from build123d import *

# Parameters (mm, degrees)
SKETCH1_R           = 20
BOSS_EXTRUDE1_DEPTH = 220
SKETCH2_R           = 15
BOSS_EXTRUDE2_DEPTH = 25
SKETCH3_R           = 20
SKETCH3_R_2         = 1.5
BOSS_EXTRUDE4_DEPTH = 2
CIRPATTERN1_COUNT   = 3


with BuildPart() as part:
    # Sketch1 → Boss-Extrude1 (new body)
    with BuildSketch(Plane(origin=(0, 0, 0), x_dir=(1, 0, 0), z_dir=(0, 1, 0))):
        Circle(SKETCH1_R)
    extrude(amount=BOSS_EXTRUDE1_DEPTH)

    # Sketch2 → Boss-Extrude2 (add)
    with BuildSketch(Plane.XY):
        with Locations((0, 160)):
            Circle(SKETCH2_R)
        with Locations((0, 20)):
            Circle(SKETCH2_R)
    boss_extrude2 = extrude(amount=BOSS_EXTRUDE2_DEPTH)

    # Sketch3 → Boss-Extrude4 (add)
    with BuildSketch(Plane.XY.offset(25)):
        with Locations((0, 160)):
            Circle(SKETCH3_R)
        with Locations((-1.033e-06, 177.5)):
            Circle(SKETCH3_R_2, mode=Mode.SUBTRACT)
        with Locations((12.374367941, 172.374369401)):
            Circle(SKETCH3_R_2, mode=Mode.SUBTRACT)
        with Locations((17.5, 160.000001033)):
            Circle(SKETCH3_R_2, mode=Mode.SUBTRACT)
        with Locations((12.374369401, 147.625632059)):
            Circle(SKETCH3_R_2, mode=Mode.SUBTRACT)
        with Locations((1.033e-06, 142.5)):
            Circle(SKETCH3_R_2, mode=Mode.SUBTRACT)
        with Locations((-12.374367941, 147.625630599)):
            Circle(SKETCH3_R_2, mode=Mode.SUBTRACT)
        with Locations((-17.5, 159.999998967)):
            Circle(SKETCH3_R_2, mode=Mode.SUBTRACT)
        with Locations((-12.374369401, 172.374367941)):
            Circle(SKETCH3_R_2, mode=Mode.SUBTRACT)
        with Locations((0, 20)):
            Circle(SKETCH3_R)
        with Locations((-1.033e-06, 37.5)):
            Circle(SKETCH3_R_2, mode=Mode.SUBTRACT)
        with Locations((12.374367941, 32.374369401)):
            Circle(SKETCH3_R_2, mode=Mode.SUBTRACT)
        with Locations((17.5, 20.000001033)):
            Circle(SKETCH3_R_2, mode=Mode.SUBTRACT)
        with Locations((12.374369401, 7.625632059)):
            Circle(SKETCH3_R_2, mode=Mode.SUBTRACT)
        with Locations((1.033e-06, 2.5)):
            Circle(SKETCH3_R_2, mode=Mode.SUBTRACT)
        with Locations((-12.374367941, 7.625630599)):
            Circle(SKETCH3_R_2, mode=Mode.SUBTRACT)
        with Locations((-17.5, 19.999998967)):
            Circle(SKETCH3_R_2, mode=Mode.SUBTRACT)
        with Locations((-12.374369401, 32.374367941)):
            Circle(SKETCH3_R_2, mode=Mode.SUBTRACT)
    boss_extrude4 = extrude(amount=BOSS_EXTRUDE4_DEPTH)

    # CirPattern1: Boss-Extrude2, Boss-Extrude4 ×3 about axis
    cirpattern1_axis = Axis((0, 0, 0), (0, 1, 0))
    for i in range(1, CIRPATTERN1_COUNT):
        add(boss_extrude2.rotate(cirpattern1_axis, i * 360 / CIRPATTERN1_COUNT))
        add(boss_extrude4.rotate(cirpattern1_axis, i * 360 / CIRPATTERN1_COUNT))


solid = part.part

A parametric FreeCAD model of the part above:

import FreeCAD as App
import Part
import Sketcher

V = App.Vector
Q = App.Units.Quantity

doc = App.newDocument("Part")
params = doc.addObject("Spreadsheet::Sheet", "Params")
for row, (alias, value) in enumerate([
    ("sketch1_diameter", "40 mm"),
    ("pad1_length", "220 mm"),
    ("sketch2_diameter", "30 mm"),
    ("pad2_length", "25 mm"),
    ("sketch3_diameter", "40 mm"),
    ("sketch3_diameter2", "3 mm"),
    ("pad3_length", "2 mm"),
], start=1):
    params.set(f"A{row}", alias)
    params.set(f"B{row}", "=" + value)
    params.setAlias(f"B{row}", alias)

body = doc.addObject("PartDesign::Body", "Body")

# Sketch on XZ plane
sketch1 = doc.addObject("Sketcher::SketchObject", "Sketch")
body.addObject(sketch1)
sketch1.AttachmentSupport = (doc.XZ_Plane, [""])
sketch1.MapMode = "FlatFace"
sketch1.addGeometry(Part.Circle(V(0, 0, 0), V(0, 0, 1), 20), False)
sketch1.addConstraint(Sketcher.Constraint("Coincident", 0, 3, -1, 1))
sketch1.addConstraint(Sketcher.Constraint("Diameter", 0, Q("40 mm")))
sketch1.setExpression("Constraints[1]", "Params.sketch1_diameter")
pad1 = doc.addObject("PartDesign::Pad", "Pad")
body.addObject(pad1)
pad1.Profile = sketch1
pad1.setExpression("Length", "Params.pad1_length")
pad1.Reversed = True

# Sketch on XY plane
sketch2 = doc.addObject("Sketcher::SketchObject", "Sketch001")
body.addObject(sketch2)
sketch2.AttachmentSupport = (doc.XY_Plane, [""])
sketch2.MapMode = "FlatFace"
sketch2.addGeometry(Part.Circle(V(0, 160, 0), V(0, 0, 1), 15), False)
sketch2.addGeometry(Part.Circle(V(0, 20, 0), V(0, 0, 1), 15), False)
sketch2.addConstraint(Sketcher.Constraint("Equal", 0, 1))
sketch2.addConstraint(Sketcher.Constraint("PointOnObject", 0, 3, -2))
sketch2.addConstraint(Sketcher.Constraint("PointOnObject", 1, 3, -2))
sketch2.addConstraint(Sketcher.Constraint("Diameter", 0, Q("30 mm")))
sketch2.addConstraint(Sketcher.Constraint("DistanceY", -1, 1, 0, 3, Q("160 mm")))
sketch2.addConstraint(Sketcher.Constraint("DistanceY", -1, 1, 1, 3, Q("20 mm")))
sketch2.setExpression("Constraints[3]", "Params.sketch2_diameter")
pad2 = doc.addObject("PartDesign::Pad", "Pad001")
body.addObject(pad2)
pad2.Profile = sketch2
pad2.setExpression("Length", "Params.pad2_length")

# Sketch on XY plane
sketch3 = doc.addObject("Sketcher::SketchObject", "Sketch002")
body.addObject(sketch3)
sketch3.AttachmentSupport = (doc.XY_Plane, [""])
sketch3.MapMode = "FlatFace"
sketch3.AttachmentOffset = App.Placement(V(0, 0, 25), App.Rotation())
sketch3.addGeometry(Part.Circle(V(0, 160, 0), V(0, 0, 1), 20), False)
sketch3.addGeometry(Part.Circle(V(-12.4, 147.6, 0), V(0, 0, 1), 1.5), False)
sketch3.addGeometry(Part.Circle(V(-17.5, 160, 0), V(0, 0, 1), 1.5), False)
sketch3.addGeometry(Part.Circle(V(0, 142.5, 0), V(0, 0, 1), 1.5), False)
sketch3.addGeometry(Part.Circle(V(12.4, 147.6, 0), V(0, 0, 1), 1.5), False)
sketch3.addGeometry(Part.Circle(V(-12.4, 172.4, 0), V(0, 0, 1), 1.5), False)
sketch3.addGeometry(Part.Circle(V(0, 177.5, 0), V(0, 0, 1), 1.5), False)
sketch3.addGeometry(Part.Circle(V(17.5, 160, 0), V(0, 0, 1), 1.5), False)
sketch3.addGeometry(Part.Circle(V(12.4, 172.4, 0), V(0, 0, 1), 1.5), False)
sketch3.addGeometry(Part.Circle(V(0, 20, 0), V(0, 0, 1), 20), False)
sketch3.addGeometry(Part.Circle(V(-12.4, 7.6, 0), V(0, 0, 1), 1.5), False)
sketch3.addGeometry(Part.Circle(V(-17.5, 20, 0), V(0, 0, 1), 1.5), False)
sketch3.addGeometry(Part.Circle(V(0, 2.5, 0), V(0, 0, 1), 1.5), False)
sketch3.addGeometry(Part.Circle(V(12.4, 7.6, 0), V(0, 0, 1), 1.5), False)
sketch3.addGeometry(Part.Circle(V(-12.4, 32.4, 0), V(0, 0, 1), 1.5), False)
sketch3.addGeometry(Part.Circle(V(0, 37.5, 0), V(0, 0, 1), 1.5), False)
sketch3.addGeometry(Part.Circle(V(17.5, 20, 0), V(0, 0, 1), 1.5), False)
sketch3.addGeometry(Part.Circle(V(12.4, 32.4, 0), V(0, 0, 1), 1.5), False)
sketch3.addConstraint(Sketcher.Constraint("Equal", 1, 2))
sketch3.addConstraint(Sketcher.Constraint("Equal", 2, 3))
sketch3.addConstraint(Sketcher.Constraint("Equal", 3, 4))
sketch3.addConstraint(Sketcher.Constraint("Equal", 4, 5))
sketch3.addConstraint(Sketcher.Constraint("Equal", 5, 6))
sketch3.addConstraint(Sketcher.Constraint("Equal", 6, 7))
sketch3.addConstraint(Sketcher.Constraint("Equal", 7, 8))
sketch3.addConstraint(Sketcher.Constraint("Equal", 0, 9))
sketch3.addConstraint(Sketcher.Constraint("Equal", 8, 10))
sketch3.addConstraint(Sketcher.Constraint("Equal", 10, 11))
sketch3.addConstraint(Sketcher.Constraint("Equal", 11, 12))
sketch3.addConstraint(Sketcher.Constraint("Equal", 12, 13))
sketch3.addConstraint(Sketcher.Constraint("Equal", 13, 14))
sketch3.addConstraint(Sketcher.Constraint("Equal", 14, 15))
sketch3.addConstraint(Sketcher.Constraint("Equal", 15, 16))
sketch3.addConstraint(Sketcher.Constraint("Equal", 16, 17))
sketch3.addConstraint(Sketcher.Constraint("Symmetric", 1, 3, 4, 3, -2))
sketch3.addConstraint(Sketcher.Constraint("Symmetric", 2, 3, 7, 3, -2))
sketch3.addConstraint(Sketcher.Constraint("Symmetric", 5, 3, 8, 3, -2))
sketch3.addConstraint(Sketcher.Constraint("Symmetric", 10, 3, 13, 3, -2))
sketch3.addConstraint(Sketcher.Constraint("Symmetric", 11, 3, 16, 3, -2))
sketch3.addConstraint(Sketcher.Constraint("Symmetric", 14, 3, 17, 3, -2))
sketch3.addConstraint(Sketcher.Constraint("PointOnObject", 0, 3, -2))
sketch3.addConstraint(Sketcher.Constraint("PointOnObject", 3, 3, -2))
sketch3.addConstraint(Sketcher.Constraint("PointOnObject", 6, 3, -2))
sketch3.addConstraint(Sketcher.Constraint("PointOnObject", 9, 3, -2))
sketch3.addConstraint(Sketcher.Constraint("PointOnObject", 12, 3, -2))
sketch3.addConstraint(Sketcher.Constraint("PointOnObject", 15, 3, -2))
sketch3.addConstraint(Sketcher.Constraint("Horizontal", 0, 3, 2, 3))
sketch3.addConstraint(Sketcher.Constraint("Horizontal", 9, 3, 11, 3))
sketch3.addConstraint(Sketcher.Constraint("Vertical", 1, 3, 5, 3))
sketch3.addConstraint(Sketcher.Constraint("Vertical", 5, 3, 10, 3))
sketch3.addConstraint(Sketcher.Constraint("Vertical", 2, 3, 11, 3))
sketch3.addConstraint(Sketcher.Constraint("Vertical", 10, 3, 14, 3))
sketch3.addConstraint(Sketcher.Constraint("Diameter", 0, Q("40 mm")))
sketch3.addConstraint(Sketcher.Constraint("Diameter", 1, Q("3 mm")))
sketch3.addConstraint(Sketcher.Constraint("DistanceY", -1, 1, 0, 3, Q("160 mm")))
sketch3.addConstraint(Sketcher.Constraint("DistanceY", -1, 1, 9, 3, Q("20 mm")))
sketch3.addConstraint(Sketcher.Constraint("DistanceY", 10, 3, 1, 3, Q("140 mm")))
sketch3.addConstraint(Sketcher.Constraint("DistanceY", 12, 3, 3, 3, Q("140 mm")))
sketch3.addConstraint(Sketcher.Constraint("DistanceX", 2, 3, -1, 1, Q("17.5 mm")))
sketch3.addConstraint(Sketcher.Constraint("DistanceY", -1, 1, 3, 3, Q("142.5 mm")))
sketch3.addConstraint(Sketcher.Constraint("DistanceY", -1, 1, 6, 3, Q("177.5 mm")))
sketch3.addConstraint(Sketcher.Constraint("DistanceY", -1, 1, 15, 3, Q("37.5 mm")))
sketch3.addConstraint(Sketcher.Constraint("DistanceY", -1, 1, 1, 3, Q("147.625631 mm")))
sketch3.addConstraint(Sketcher.Constraint("DistanceX", -1, 1, 4, 3, Q("12.374369 mm")))
sketch3.addConstraint(Sketcher.Constraint("DistanceY", -1, 1, 8, 3, Q("172.374369 mm")))
sketch3.addConstraint(Sketcher.Constraint("DistanceY", -1, 1, 17, 3, Q("32.374369 mm")))
sketch3.setExpression("Constraints[34]", "Params.sketch3_diameter")
sketch3.setExpression("Constraints[35]", "Params.sketch3_diameter2")
pad3 = doc.addObject("PartDesign::Pad", "Pad002")
body.addObject(pad3)
pad3.Profile = sketch3
pad3.setExpression("Length", "Params.pad3_length")
doc.recompute()

polarpattern = doc.addObject("PartDesign::PolarPattern", "PolarPattern")
body.addObject(polarpattern)
polarpattern.Originals = [pad2, pad3]
polarpattern.Axis = (doc.Y_Axis, [""])
polarpattern.Angle = 360
polarpattern.Occurrences = 3
body.Tip = polarpattern

doc.recompute()
